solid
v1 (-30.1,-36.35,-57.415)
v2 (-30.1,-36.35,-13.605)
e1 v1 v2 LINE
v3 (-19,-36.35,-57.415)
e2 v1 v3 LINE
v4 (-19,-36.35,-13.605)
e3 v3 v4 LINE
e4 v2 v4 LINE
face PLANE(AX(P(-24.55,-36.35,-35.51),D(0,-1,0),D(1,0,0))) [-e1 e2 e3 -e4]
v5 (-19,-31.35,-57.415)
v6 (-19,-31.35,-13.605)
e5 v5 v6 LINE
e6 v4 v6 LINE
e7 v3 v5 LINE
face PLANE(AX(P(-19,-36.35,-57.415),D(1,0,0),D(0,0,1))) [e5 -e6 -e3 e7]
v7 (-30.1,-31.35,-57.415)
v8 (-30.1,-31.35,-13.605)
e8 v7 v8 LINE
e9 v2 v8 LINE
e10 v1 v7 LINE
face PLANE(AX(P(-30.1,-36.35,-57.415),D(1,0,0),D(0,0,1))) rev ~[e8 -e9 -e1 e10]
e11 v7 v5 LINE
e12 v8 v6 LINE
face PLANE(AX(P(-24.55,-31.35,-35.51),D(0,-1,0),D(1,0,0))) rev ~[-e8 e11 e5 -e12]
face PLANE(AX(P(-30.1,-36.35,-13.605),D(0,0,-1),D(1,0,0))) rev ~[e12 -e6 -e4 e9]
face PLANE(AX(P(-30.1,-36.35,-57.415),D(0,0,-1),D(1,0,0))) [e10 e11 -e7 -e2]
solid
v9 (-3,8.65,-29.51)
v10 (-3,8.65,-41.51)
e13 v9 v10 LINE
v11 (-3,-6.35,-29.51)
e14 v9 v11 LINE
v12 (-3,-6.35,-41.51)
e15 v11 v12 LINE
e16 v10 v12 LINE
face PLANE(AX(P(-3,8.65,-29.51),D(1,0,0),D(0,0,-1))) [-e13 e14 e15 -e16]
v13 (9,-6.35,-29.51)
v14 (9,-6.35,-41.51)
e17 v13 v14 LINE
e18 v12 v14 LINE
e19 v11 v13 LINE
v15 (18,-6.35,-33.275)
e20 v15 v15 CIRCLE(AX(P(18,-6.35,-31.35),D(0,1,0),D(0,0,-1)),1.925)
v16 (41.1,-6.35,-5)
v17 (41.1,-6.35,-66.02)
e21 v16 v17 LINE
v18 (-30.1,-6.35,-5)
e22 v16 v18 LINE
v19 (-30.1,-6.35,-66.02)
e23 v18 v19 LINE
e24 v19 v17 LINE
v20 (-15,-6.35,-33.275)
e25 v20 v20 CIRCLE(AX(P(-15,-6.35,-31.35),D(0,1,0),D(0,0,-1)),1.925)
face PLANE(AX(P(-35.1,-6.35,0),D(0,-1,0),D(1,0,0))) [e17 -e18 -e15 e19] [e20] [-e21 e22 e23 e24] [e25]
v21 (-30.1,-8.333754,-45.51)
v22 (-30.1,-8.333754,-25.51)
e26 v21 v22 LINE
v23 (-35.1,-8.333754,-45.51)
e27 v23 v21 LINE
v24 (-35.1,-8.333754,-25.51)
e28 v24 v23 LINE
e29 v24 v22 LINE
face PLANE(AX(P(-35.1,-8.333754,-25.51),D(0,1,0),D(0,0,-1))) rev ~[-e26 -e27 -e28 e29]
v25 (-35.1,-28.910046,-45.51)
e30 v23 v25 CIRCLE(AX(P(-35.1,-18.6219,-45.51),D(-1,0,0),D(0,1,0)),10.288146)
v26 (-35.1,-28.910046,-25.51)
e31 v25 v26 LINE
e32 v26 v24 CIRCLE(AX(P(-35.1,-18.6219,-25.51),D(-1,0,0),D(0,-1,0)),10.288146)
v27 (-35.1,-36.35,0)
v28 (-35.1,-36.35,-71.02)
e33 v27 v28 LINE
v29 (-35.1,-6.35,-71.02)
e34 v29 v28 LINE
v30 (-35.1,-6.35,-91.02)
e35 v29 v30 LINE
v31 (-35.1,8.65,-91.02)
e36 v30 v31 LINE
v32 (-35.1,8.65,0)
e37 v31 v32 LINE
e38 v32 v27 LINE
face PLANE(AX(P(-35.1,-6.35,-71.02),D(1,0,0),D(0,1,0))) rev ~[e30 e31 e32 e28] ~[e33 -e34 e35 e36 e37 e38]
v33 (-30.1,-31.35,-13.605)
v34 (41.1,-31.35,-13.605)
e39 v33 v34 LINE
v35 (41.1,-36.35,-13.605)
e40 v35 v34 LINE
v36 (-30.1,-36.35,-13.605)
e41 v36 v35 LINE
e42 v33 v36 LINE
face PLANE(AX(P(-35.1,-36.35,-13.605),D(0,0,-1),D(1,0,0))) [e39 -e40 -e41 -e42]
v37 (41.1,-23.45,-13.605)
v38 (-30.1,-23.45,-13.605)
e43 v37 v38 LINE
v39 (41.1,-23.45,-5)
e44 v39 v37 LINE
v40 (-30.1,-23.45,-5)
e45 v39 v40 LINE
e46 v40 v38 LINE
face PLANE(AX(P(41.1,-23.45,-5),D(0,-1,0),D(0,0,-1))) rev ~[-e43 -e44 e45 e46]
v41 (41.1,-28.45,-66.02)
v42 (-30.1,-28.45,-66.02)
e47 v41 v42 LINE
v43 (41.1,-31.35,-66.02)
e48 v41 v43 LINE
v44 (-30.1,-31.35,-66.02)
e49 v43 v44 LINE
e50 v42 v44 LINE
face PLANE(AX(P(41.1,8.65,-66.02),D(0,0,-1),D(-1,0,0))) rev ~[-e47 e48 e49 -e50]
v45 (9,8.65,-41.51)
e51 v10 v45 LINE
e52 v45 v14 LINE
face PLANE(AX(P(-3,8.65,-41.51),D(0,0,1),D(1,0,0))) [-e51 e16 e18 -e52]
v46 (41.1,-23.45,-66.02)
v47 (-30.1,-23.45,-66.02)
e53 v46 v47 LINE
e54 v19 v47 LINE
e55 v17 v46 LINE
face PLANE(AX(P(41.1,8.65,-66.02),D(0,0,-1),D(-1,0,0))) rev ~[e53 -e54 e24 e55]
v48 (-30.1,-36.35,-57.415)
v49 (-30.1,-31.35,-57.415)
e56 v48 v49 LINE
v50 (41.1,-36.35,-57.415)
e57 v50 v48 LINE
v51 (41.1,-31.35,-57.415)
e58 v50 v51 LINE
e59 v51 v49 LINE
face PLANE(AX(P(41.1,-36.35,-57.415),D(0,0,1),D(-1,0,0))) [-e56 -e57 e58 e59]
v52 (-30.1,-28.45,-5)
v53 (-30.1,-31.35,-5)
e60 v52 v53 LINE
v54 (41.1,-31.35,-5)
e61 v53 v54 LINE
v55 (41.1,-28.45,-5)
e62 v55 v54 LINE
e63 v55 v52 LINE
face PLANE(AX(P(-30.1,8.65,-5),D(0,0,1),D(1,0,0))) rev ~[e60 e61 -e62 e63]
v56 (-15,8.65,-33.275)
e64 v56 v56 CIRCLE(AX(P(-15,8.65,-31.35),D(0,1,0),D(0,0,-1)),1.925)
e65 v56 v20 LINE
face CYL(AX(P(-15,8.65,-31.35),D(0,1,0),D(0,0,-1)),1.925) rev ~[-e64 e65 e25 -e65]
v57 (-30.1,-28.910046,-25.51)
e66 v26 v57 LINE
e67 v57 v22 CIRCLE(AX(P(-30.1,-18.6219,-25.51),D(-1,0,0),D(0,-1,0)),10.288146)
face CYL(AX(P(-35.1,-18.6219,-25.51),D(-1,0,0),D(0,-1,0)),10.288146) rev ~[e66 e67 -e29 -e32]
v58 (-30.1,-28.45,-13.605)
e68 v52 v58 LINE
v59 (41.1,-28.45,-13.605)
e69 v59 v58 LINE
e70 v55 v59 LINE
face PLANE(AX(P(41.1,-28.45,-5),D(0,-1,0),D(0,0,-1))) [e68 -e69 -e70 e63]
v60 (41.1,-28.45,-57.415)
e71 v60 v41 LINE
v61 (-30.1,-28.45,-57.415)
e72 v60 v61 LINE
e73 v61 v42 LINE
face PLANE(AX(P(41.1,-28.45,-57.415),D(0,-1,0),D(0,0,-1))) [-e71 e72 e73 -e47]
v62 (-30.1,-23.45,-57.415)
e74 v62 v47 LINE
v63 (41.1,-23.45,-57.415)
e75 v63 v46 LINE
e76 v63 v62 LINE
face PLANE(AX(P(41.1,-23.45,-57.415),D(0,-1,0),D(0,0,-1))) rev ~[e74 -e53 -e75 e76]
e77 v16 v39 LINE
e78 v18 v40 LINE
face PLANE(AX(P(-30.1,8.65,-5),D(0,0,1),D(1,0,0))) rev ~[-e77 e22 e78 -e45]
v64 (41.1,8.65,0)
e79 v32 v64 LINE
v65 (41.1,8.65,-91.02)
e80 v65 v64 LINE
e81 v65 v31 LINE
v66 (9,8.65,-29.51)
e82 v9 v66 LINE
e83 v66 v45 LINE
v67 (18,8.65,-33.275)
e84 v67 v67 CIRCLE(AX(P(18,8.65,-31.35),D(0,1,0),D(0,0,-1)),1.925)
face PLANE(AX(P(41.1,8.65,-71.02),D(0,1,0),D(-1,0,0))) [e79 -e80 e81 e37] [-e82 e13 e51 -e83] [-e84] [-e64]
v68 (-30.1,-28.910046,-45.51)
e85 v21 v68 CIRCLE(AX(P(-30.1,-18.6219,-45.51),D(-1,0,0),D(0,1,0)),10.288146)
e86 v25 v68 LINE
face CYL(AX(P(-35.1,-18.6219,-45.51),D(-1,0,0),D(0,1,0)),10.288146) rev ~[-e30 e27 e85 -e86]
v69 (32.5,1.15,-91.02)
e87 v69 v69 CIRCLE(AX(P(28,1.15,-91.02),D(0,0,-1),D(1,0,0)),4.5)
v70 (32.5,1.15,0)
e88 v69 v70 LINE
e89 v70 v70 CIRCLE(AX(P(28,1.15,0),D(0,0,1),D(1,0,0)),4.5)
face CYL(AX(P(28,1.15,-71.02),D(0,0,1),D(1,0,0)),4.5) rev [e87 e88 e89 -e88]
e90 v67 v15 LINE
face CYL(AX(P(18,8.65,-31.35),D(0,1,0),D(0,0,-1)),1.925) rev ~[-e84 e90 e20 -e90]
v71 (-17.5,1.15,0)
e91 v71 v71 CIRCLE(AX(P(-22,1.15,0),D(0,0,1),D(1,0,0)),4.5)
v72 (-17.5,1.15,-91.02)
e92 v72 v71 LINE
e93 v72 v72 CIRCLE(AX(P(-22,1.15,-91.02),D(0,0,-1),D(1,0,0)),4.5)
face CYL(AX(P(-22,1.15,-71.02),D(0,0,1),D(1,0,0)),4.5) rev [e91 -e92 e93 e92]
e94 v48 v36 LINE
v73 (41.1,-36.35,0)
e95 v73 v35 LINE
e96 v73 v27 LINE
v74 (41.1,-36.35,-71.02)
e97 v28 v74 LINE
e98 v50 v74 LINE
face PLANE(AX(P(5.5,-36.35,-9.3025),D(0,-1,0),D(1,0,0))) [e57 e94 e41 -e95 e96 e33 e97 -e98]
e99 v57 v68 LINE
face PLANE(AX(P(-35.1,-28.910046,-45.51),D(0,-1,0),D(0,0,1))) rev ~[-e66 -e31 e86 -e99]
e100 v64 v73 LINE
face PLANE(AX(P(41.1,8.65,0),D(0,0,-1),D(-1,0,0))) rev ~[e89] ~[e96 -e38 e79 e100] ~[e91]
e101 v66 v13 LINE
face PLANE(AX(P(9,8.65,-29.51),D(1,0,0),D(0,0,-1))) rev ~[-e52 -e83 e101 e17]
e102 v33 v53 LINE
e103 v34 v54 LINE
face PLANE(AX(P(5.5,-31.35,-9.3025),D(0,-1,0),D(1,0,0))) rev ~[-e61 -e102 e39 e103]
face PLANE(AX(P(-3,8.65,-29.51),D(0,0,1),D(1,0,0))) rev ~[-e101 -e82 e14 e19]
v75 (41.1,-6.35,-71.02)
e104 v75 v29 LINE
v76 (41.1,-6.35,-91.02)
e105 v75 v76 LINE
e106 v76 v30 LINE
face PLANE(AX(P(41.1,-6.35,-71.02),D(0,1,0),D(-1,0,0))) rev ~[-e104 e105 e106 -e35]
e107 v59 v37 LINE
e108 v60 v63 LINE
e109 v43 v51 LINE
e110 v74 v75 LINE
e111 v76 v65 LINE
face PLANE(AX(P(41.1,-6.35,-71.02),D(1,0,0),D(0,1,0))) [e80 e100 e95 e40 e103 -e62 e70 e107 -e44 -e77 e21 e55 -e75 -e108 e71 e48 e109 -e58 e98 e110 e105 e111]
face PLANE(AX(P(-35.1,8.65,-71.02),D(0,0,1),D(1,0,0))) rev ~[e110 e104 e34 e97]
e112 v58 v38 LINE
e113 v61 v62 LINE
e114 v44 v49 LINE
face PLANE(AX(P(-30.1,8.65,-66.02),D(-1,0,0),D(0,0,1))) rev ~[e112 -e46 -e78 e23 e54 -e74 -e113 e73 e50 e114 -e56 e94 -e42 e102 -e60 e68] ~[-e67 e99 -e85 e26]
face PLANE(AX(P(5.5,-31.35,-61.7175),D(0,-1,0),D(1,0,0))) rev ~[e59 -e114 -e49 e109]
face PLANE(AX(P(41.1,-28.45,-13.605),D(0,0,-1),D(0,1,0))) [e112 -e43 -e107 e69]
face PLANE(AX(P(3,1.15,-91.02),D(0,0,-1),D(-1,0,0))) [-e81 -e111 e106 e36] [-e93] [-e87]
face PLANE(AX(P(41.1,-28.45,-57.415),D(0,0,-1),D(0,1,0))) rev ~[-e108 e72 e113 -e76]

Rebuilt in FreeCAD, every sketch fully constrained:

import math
import FreeCAD as App
import Part
import Sketcher
from FreeCAD import Vector


def add_polygon(sketch, points):
    """Adds a closed chain of lines whose ends are joined by coincident constraints."""
    first, n = sketch.GeometryCount, len(points)
    for a, b in zip(points, points[1:] + points[:1]):
        sketch.addGeometry(Part.LineSegment(App.Vector(*a, 0), App.Vector(*b, 0)), False)
    for i in range(n):
        sketch.addConstraint(Sketcher.Constraint("Coincident", first + i, 2, first + (i + 1) % n, 1))

doc = App.newDocument("Part")
body = doc.addObject("PartDesign::Body", "Body")

sketch1 = doc.addObject("Sketcher::SketchObject", "Sketch")
body.addObject(sketch1)
sketch1.AttachmentSupport = (doc.XY_Plane, [""])
sketch1.MapMode = "FlatFace"
add_polygon(sketch1, [(-35.1, 8.7), (-35.1, -6.3), (41.1, -6.3), (41.1, 8.7)])
sketch1.addGeometry(Part.Circle(Vector(-22, 1.1, 0), Vector(0, 0, 1), 4), False)
sketch1.addGeometry(Part.Circle(Vector(28, 1.1, 0), Vector(0, 0, 1), 4), False)
sketch1.addConstraint(Sketcher.Constraint("Vertical", 0))
sketch1.addConstraint(Sketcher.Constraint("Horizontal", 1))
sketch1.addConstraint(Sketcher.Constraint("Vertical", 2))
sketch1.addConstraint(Sketcher.Constraint("Horizontal", 3))
sketch1.addConstraint(Sketcher.Constraint("Equal", 4, 5))
sketch1.addConstraint(Sketcher.Constraint("Horizontal", 4, 3, 5, 3))
sketch1.addConstraint(Sketcher.Constraint("DistanceY", 0, 2, 0, 1, 15.0))
sketch1.addConstraint(Sketcher.Constraint("DistanceX", 1, 1, 1, 2, 76.2))
sketch1.addConstraint(Sketcher.Constraint("DistanceX", 4, 3, -1, 1, 22.0))
sketch1.addConstraint(Sketcher.Constraint("DistanceX", -1, 1, 5, 3, 28.0))
sketch1.addConstraint(Sketcher.Constraint("Diameter", 4, 7.9375))
sketch1.addConstraint(Sketcher.Constraint("DistanceX", 0, 2, -1, 1, 35.1))
sketch1.addConstraint(Sketcher.Constraint("DistanceY", 0, 2, 4, 3, 7.5))
sketch1.addConstraint(Sketcher.Constraint("DistanceY", -1, 1, 4, 3, 1.15))
pad1 = doc.addObject("PartDesign::Pad", "Pad")
body.addObject(pad1)
pad1.Profile = sketch1
pad1.Length = 71.02
pad1.Reversed = True

sketch2 = doc.addObject("Sketcher::SketchObject", "Sketch001")
body.addObject(sketch2)
sketch2.AttachmentSupport = (doc.XZ_Plane, [""])
sketch2.MapMode = "FlatFace"
sketch2.AttachmentOffset = App.Placement(Vector(0, 0, -8.65), App.Rotation())
add_polygon(sketch2, [(41, -71), (-35, -71), (-35, 0), (41, 0), (41, -5), (-30, -5), (-30, -66), (41, -66)])
sketch2.addConstraint(Sketcher.Constraint("Horizontal", 0))
sketch2.addConstraint(Sketcher.Constraint("Vertical", 1))
sketch2.addConstraint(Sketcher.Constraint("Horizontal", 2))
sketch2.addConstraint(Sketcher.Constraint("Vertical", 3))
sketch2.addConstraint(Sketcher.Constraint("Horizontal", 4))
sketch2.addConstraint(Sketcher.Constraint("Vertical", 5))
sketch2.addConstraint(Sketcher.Constraint("Horizontal", 6))
sketch2.addConstraint(Sketcher.Constraint("Vertical", 7))
sketch2.addConstraint(Sketcher.Constraint("PointOnObject", 1, 2, -1))
sketch2.addConstraint(Sketcher.Constraint("Vertical", 3, 2, 6, 2))
sketch2.addConstraint(Sketcher.Constraint("Equal", 3, 7))
sketch2.addConstraint(Sketcher.Constraint("DistanceY", 3, 2, 3, 1, 5.0))
sketch2.addConstraint(Sketcher.Constraint("DistanceX", 0, 2, 0, 1, 76.2))
sketch2.addConstraint(Sketcher.Constraint("DistanceX", 4, 2, 4, 1, 71.2))
sketch2.addConstraint(Sketcher.Constraint("DistanceY", 1, 1, 1, 2, 71.02))
sketch2.addConstraint(Sketcher.Constraint("DistanceX", 0, 2, -1, 1, 35.1))
pad2 = doc.addObject("PartDesign::Pad", "Pad001")
body.addObject(pad2)
pad2.Profile = sketch2
pad2.Length = 45

sketch3 = doc.addObject("Sketcher::SketchObject", "Sketch002")
body.addObject(sketch3)
sketch3.AttachmentSupport = (doc.XY_Plane, [""])
sketch3.MapMode = "FlatFace"
sketch3.addGeometry(Part.Circle(Vector(-22, 1.1, 0), Vector(0, 0, 1), 4.5), False)
sketch3.addGeometry(Part.Circle(Vector(28, 1.1, 0), Vector(0, 0, 1), 4.5), False)
sketch3.addConstraint(Sketcher.Constraint("Equal", 0, 1))
sketch3.addConstraint(Sketcher.Constraint("Horizontal", 0, 3, 1, 3))
sketch3.addConstraint(Sketcher.Constraint("Diameter", 0, 9.0))
sketch3.addConstraint(Sketcher.Constraint("DistanceX", 0, 3, -1, 1, 22.0))
sketch3.addConstraint(Sketcher.Constraint("DistanceX", -1, 1, 1, 3, 28.0))
sketch3.addConstraint(Sketcher.Constraint("DistanceY", -1, 1, 0, 3, 1.15))
pocket1 = doc.addObject("PartDesign::Pocket", "Pocket")
body.addObject(pocket1)
pocket1.Profile = sketch3
pocket1.Type = "ThroughAll"

sketch4 = doc.addObject("Sketcher::SketchObject", "Sketch003")
body.addObject(sketch4)
sketch4.AttachmentSupport = (doc.XZ_Plane, [""])
sketch4.MapMode = "FlatFace"
sketch4.AttachmentOffset = App.Placement(Vector(0, 0, 36.35), App.Rotation())
add_polygon(sketch4, [(41, -14), (41, 0), (-35, 0), (-35, -14)])
add_polygon(sketch4, [(41, -57), (-35, -57), (-35, -71), (41, -71)])
sketch4.addConstraint(Sketcher.Constraint("Vertical", 0))
sketch4.addConstraint(Sketcher.Constraint("Horizontal", 1))
sketch4.addConstraint(Sketcher.Constraint("Vertical", 2))
sketch4.addConstraint(Sketcher.Constraint("Horizontal", 3))
sketch4.addConstraint(Sketcher.Constraint("Horizontal", 4))
sketch4.addConstraint(Sketcher.Constraint("Vertical", 5))
sketch4.addConstraint(Sketcher.Constraint("Horizontal", 6))
sketch4.addConstraint(Sketcher.Constraint("Vertical", 7))
sketch4.addConstraint(Sketcher.Constraint("PointOnObject", 0, 2, -1))
sketch4.addConstraint(Sketcher.Constraint("Vertical", 2, 2, 4, 2))
sketch4.addConstraint(Sketcher.Constraint("Vertical", 3, 2, 6, 2))
sketch4.addConstraint(Sketcher.Constraint("Equal", 2, 5))
sketch4.addConstraint(Sketcher.Constraint("DistanceX", 1, 2, 1, 1, 76.2))
sketch4.addConstraint(Sketcher.Constraint("DistanceX", -1, 1, 0, 2, 41.1))
sketch4.addConstraint(Sketcher.Constraint("DistanceY", 0, 1, 0, 2, 13.605))
sketch4.addConstraint(Sketcher.Constraint("DistanceY", 5, 2, -1, 1, 71.02))
pad3 = doc.addObject("PartDesign::Pad", "Pad002")
body.addObject(pad3)
pad3.Profile = sketch4
pad3.Length = 5
pad3.Reversed = True

sketch5 = doc.addObject("Sketcher::SketchObject", "Sketch004")
body.addObject(sketch5)
sketch5.AttachmentSupport = (doc.XY_Plane, [""])
sketch5.MapMode = "FlatFace"
sketch5.AttachmentOffset = App.Placement(Vector(0, 0, -71.02), App.Rotation())
add_polygon(sketch5, [(41.1, 8.7), (41.1, -6.3), (-35.1, -6.3), (-35.1, 8.7)])
sketch5.addGeometry(Part.Circle(Vector(28, 1.1, 0), Vector(0, 0, 1), 4.5), False)
sketch5.addGeometry(Part.Circle(Vector(-22, 1.1, 0), Vector(0, 0, 1), 4.5), False)
sketch5.addConstraint(Sketcher.Constraint("Vertical", 0))
sketch5.addConstraint(Sketcher.Constraint("Horizontal", 1))
sketch5.addConstraint(Sketcher.Constraint("Vertical", 2))
sketch5.addConstraint(Sketcher.Constraint("Horizontal", 3))
sketch5.addConstraint(Sketcher.Constraint("Equal", 4, 5))
sketch5.addConstraint(Sketcher.Constraint("Horizontal", 4, 3, 5, 3))
sketch5.addConstraint(Sketcher.Constraint("Diameter", 4, 9.0))
sketch5.addConstraint(Sketcher.Constraint("DistanceY", 0, 2, 0, 1, 15.0))
sketch5.addConstraint(Sketcher.Constraint("DistanceX", 1, 2, 1, 1, 76.2))
sketch5.addConstraint(Sketcher.Constraint("DistanceX", -1, 1, 4, 3, 28.0))
sketch5.addConstraint(Sketcher.Constraint("DistanceX", 5, 3, -1, 1, 22.0))
sketch5.addConstraint(Sketcher.Constraint("DistanceX", -1, 1, 0, 2, 41.1))
sketch5.addConstraint(Sketcher.Constraint("DistanceY", 0, 2, 4, 3, 7.5))
sketch5.addConstraint(Sketcher.Constraint("DistanceY", -1, 1, 4, 3, 1.15))
pad4 = doc.addObject("PartDesign::Pad", "Pad003")
body.addObject(pad4)
pad4.Profile = sketch5
pad4.Length = 20
pad4.Reversed = True

sketch6 = doc.addObject("Sketcher::SketchObject", "Sketch005")
body.addObject(sketch6)
sketch6.AttachmentSupport = (doc.XZ_Plane, [""])
sketch6.MapMode = "FlatFace"
sketch6.AttachmentOffset = App.Placement(Vector(0, 0, -8.65), App.Rotation())
sketch6.addGeometry(Part.Circle(Vector(18, -31.4, 0), Vector(0, 0, 1), 1.9), False)
sketch6.addConstraint(Sketcher.Constraint("Diameter", 0, 3.85))
sketch6.addConstraint(Sketcher.Constraint("DistanceX", -1, 1, 0, 3, 18.0))
sketch6.addConstraint(Sketcher.Constraint("DistanceY", 0, 3, -1, 1, 31.35))
pocket2 = doc.addObject("PartDesign::Pocket", "Pocket001")
body.addObject(pocket2)
pocket2.Profile = sketch6
pocket2.Type = "UpToFirst"
pocket2.Reversed = True

sketch7 = doc.addObject("Sketcher::SketchObject", "Sketch006")
body.addObject(sketch7)
sketch7.AttachmentSupport = (doc.XZ_Plane, [""])
sketch7.MapMode = "FlatFace"
sketch7.AttachmentOffset = App.Placement(Vector(0, 0, -8.65), App.Rotation())
sketch7.addGeometry(Part.Circle(Vector(-15, -31.4, 0), Vector(0, 0, 1), 1.9), False)
sketch7.addConstraint(Sketcher.Constraint("Diameter", 0, 3.85))
sketch7.addConstraint(Sketcher.Constraint("DistanceX", 0, 3, -1, 1, 15.0))
sketch7.addConstraint(Sketcher.Constraint("DistanceY", 0, 3, -1, 1, 31.35))
pocket3 = doc.addObject("PartDesign::Pocket", "Pocket002")
body.addObject(pocket3)
pocket3.Profile = sketch7
pocket3.Type = "UpToFirst"
pocket3.Reversed = True

sketch8 = doc.addObject("Sketcher::SketchObject", "Sketch007")
body.addObject(sketch8)
sketch8.AttachmentSupport = (doc.XZ_Plane, [""])
sketch8.MapMode = "FlatFace"
sketch8.AttachmentOffset = App.Placement(Vector(0, 0, -8.65), App.Rotation())
add_polygon(sketch8, [(-3, -42), (-3, -30), (9, -30), (9, -42)])
sketch8.addConstraint(Sketcher.Constraint("Vertical", 0))
sketch8.addConstraint(Sketcher.Constraint("Horizontal", 1))
sketch8.addConstraint(Sketcher.Constraint("Vertical", 2))
sketch8.addConstraint(Sketcher.Constraint("Horizontal", 3))
sketch8.addConstraint(Sketcher.Constraint("Equal", 3, 0))
sketch8.addConstraint(Sketcher.Constraint("DistanceX", 1, 1, 1, 2, 12.0))
sketch8.addConstraint(Sketcher.Constraint("DistanceX", 0, 2, -1, 1, 3.0))
sketch8.addConstraint(Sketcher.Constraint("DistanceY", 0, 2, -1, 1, 29.51))
pocket4 = doc.addObject("PartDesign::Pocket", "Pocket003")
body.addObject(pocket4)
pocket4.Profile = sketch8
pocket4.Type = "UpToFirst"
pocket4.Reversed = True

sketch9 = doc.addObject("Sketcher::SketchObject", "Sketch008")
body.addObject(sketch9)
sketch9.AttachmentSupport = (doc.YZ_Plane, [""])
sketch9.MapMode = "FlatFace"
sketch9.AttachmentOffset = App.Placement(Vector(0, 0, 41.1), App.Rotation())
add_polygon(sketch9, [(-23, -5), (-28, -5), (-28, -14), (-23, -14)])
sketch9.addConstraint(Sketcher.Constraint("Horizontal", 0))
sketch9.addConstraint(Sketcher.Constraint("Vertical", 1))
sketch9.addConstraint(Sketcher.Constraint("Horizontal", 2))
sketch9.addConstraint(Sketcher.Constraint("Vertical", 3))
sketch9.addConstraint(Sketcher.Constraint("DistanceX", 0, 2, 0, 1, 5.0))
sketch9.addConstraint(Sketcher.Constraint("DistanceY", 0, 2, -1, 1, 5.0))
sketch9.addConstraint(Sketcher.Constraint("DistanceY", 1, 2, 1, 1, 8.605))
sketch9.addConstraint(Sketcher.Constraint("DistanceX", 0, 2, -1, 1, 28.45))
pad5 = doc.addObject("PartDesign::Pad", "Pad004")
body.addObject(pad5)
pad5.Profile = sketch9
pad5.Type = "UpToFirst"
pad5.Reversed = True

sketch10 = doc.addObject("Sketcher::SketchObject", "Sketch009")
body.addObject(sketch10)
sketch10.AttachmentSupport = (doc.YZ_Plane, [""])
sketch10.MapMode = "FlatFace"
sketch10.AttachmentOffset = App.Placement(Vector(0, 0, 41.1), App.Rotation())
add_polygon(sketch10, [(-23, -57), (-28, -57), (-28, -66), (-23, -66)])
sketch10.addConstraint(Sketcher.Constraint("Horizontal", 0))
sketch10.addConstraint(Sketcher.Constraint("Vertical", 1))
sketch10.addConstraint(Sketcher.Constraint("Horizontal", 2))
sketch10.addConstraint(Sketcher.Constraint("Vertical", 3))
sketch10.addConstraint(Sketcher.Constraint("DistanceX", 0, 2, 0, 1, 5.0))
sketch10.addConstraint(Sketcher.Constraint("DistanceY", 1, 2, 1, 1, 8.605))
sketch10.addConstraint(Sketcher.Constraint("DistanceX", 0, 2, -1, 1, 28.45))
sketch10.addConstraint(Sketcher.Constraint("DistanceY", 1, 2, -1, 1, 66.02))
pad6 = doc.addObject("PartDesign::Pad", "Pad005")
body.addObject(pad6)
pad6.Profile = sketch10
pad6.Type = "UpToFirst"
pad6.Reversed = True

sketch11 = doc.addObject("Sketcher::SketchObject", "Sketch010")
body.addObject(sketch11)
sketch11.AttachmentSupport = (doc.YZ_Plane, [""])
sketch11.MapMode = "FlatFace"
sketch11.AttachmentOffset = App.Placement(Vector(0, 0, -35.1), App.Rotation())
sketch11.addGeometry(Part.LineSegment(Vector(-29, -46, 0), Vector(-29, -26, 0)), False)
sketch11.addGeometry(Part.ArcOfCircle(Part.Circle(Vector(-19, -26, 0), Vector(0, 0, 1), 10), math.radians(0), math.radians(180)), False)
sketch11.addGeometry(Part.LineSegment(Vector(-8, -26, 0), Vector(-8, -46, 0)), False)
sketch11.addGeometry(Part.ArcOfCircle(Part.Circle(Vector(-19, -46, 0), Vector(0, 0, 1), 10), math.radians(180), math.radians(360)), False)
sketch11.addConstraint(Sketcher.Constraint("Tangent", 0, 2, 1, 2))
sketch11.addConstraint(Sketcher.Constraint("Tangent", 1, 1, 2, 1))
sketch11.addConstraint(Sketcher.Constraint("Tangent", 2, 2, 3, 2))
sketch11.addConstraint(Sketcher.Constraint("Tangent", 3, 1, 0, 1))
sketch11.addConstraint(Sketcher.Constraint("Vertical", 0))
sketch11.addConstraint(Sketcher.Constraint("Vertical", 2))
sketch11.addConstraint(Sketcher.Constraint("DistanceY", 0, 1, 0, 2, 20.0))
sketch11.addConstraint(Sketcher.Constraint("DistanceY", 1, 3, -1, 1, 25.51))
sketch11.addConstraint(Sketcher.Constraint("Radius", 1, 10.288146))
sketch11.addConstraint(Sketcher.Constraint("DistanceX", 1, 3, -1, 1, 18.6219))
pocket5 = doc.addObject("PartDesign::Pocket", "Pocket004")
body.addObject(pocket5)
pocket5.Profile = sketch11
pocket5.Type = "UpToFirst"
pocket5.Reversed = True
body2 = doc.addObject("PartDesign::Body", "Body001")

sketch12 = doc.addObject("Sketcher::SketchObject", "Sketch011")
body2.addObject(sketch12)
sketch12.AttachmentSupport = (doc.getObject("XZ_Plane001"), [""])
sketch12.MapMode = "FlatFace"
sketch12.AttachmentOffset = App.Placement(Vector(0, 0, 36.35), App.Rotation())
add_polygon(sketch12, [(-30, -14), (-30, -57), (-19, -57), (-19, -14)])
sketch12.addConstraint(Sketcher.Constraint("Vertical", 0))
sketch12.addConstraint(Sketcher.Constraint("Horizontal", 1))
sketch12.addConstraint(Sketcher.Constraint("Vertical", 2))
sketch12.addConstraint(Sketcher.Constraint("Horizontal", 3))
sketch12.addConstraint(Sketcher.Constraint("DistanceX", 1, 1, 1, 2, 11.1))
sketch12.addConstraint(Sketcher.Constraint("DistanceX", 1, 2, -1, 1, 19.0))
sketch12.addConstraint(Sketcher.Constraint("DistanceY", 0, 2, 0, 1, 43.81))
sketch12.addConstraint(Sketcher.Constraint("DistanceY", 0, 2, -1, 1, 57.415))
pad7 = doc.addObject("PartDesign::Pad", "Pad006")
body2.addObject(pad7)
pad7.Profile = sketch12
pad7.Length = 5
pad7.Reversed = True

doc.recompute()
